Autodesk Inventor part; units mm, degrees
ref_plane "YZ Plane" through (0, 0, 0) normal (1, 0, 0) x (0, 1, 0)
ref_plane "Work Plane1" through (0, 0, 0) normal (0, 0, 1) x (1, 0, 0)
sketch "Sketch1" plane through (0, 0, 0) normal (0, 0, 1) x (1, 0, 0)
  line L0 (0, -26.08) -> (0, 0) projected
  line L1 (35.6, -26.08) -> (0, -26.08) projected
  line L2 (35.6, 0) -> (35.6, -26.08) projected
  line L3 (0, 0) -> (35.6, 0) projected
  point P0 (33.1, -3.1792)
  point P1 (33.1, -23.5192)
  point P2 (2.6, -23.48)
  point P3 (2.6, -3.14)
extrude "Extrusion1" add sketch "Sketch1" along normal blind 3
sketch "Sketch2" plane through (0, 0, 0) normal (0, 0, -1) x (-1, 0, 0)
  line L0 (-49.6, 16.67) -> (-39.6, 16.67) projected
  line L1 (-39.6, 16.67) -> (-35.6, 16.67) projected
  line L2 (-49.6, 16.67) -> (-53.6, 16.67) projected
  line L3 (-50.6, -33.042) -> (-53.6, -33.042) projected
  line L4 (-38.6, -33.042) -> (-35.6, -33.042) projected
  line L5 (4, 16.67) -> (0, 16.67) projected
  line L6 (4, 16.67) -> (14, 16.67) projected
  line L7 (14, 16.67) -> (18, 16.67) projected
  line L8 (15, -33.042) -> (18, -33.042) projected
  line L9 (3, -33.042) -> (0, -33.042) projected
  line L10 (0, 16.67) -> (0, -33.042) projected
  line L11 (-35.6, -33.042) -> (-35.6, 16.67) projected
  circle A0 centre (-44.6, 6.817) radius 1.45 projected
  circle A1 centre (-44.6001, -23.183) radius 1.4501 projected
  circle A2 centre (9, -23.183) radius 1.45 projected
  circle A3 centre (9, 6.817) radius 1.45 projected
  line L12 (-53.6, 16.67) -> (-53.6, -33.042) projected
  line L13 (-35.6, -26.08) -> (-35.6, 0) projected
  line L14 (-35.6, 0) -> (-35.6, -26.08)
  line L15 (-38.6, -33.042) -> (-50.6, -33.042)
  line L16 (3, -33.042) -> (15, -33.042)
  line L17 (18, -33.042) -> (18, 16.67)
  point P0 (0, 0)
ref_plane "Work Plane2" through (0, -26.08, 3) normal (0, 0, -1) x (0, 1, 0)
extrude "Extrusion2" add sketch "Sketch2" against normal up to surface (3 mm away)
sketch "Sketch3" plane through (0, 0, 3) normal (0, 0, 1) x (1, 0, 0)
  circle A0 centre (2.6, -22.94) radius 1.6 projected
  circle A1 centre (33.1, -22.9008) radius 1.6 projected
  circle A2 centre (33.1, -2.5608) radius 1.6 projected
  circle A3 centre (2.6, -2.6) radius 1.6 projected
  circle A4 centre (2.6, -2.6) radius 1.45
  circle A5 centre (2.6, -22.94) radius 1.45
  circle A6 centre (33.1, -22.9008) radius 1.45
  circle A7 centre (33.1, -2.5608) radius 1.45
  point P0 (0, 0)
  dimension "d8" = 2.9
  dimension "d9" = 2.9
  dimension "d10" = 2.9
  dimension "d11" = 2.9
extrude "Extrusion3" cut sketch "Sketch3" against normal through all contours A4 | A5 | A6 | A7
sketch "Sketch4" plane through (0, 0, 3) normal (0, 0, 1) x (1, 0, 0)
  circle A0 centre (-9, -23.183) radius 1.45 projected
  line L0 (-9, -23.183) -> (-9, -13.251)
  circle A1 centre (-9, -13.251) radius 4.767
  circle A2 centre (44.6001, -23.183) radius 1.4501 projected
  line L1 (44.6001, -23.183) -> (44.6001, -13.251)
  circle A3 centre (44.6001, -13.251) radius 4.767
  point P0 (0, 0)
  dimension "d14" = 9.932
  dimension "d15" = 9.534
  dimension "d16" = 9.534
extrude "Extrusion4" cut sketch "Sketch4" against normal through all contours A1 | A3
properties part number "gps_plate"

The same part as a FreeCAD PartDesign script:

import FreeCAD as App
import Part
import Sketcher

doc = App.newDocument("Part")
body = doc.addObject("PartDesign::Body", "Body")

sketch1 = body.newObject("Sketcher::SketchObject", "Sketch")
sketch1.AttachmentSupport = (doc.getObject("XY_Plane"), [""])
sketch1.MapMode = "FlatFace"
sketch1.addGeometry([
    Part.LineSegment(App.Vector(0, 0, 0), App.Vector(0, -26, 0)),
    Part.LineSegment(App.Vector(0, -26, 0), App.Vector(36, -26, 0)),
    Part.LineSegment(App.Vector(36, -26, 0), App.Vector(36, 0, 0)),
    Part.LineSegment(App.Vector(36, 0, 0), App.Vector(0, 0, 0)),
], False)
sketch1.addConstraint([
    Sketcher.Constraint("Coincident", 0, 2, 1, 1),
    Sketcher.Constraint("Coincident", 1, 2, 2, 1),
    Sketcher.Constraint("Coincident", 2, 2, 3, 1),
    Sketcher.Constraint("Coincident", 3, 2, 0, 1),
    Sketcher.Constraint("Vertical", 0),
    Sketcher.Constraint("Horizontal", 1),
    Sketcher.Constraint("Vertical", 2),
    Sketcher.Constraint("Horizontal", 3),
    Sketcher.Constraint("Coincident", 3, 2, -1, 1),
    Sketcher.Constraint("DistanceX", 1, 1, 1, 2, 35.6),
    Sketcher.Constraint("DistanceY", 0, 2, 0, 1, 26.08),
])
pad1 = body.newObject("PartDesign::Pad", "Pad")
pad1.Profile = sketch1
pad1.Length = 3

sketch2 = body.newObject("Sketcher::SketchObject", "Sketch001")
sketch2.AttachmentSupport = (doc.getObject("XY_Plane"), [""])
sketch2.MapMode = "FlatFace"
sketch2.addGeometry([
    Part.LineSegment(App.Vector(35.6, 16.7, 0), App.Vector(53.6, 16.7, 0)),
    Part.LineSegment(App.Vector(53.6, 16.7, 0), App.Vector(53.6, -33, 0)),
    Part.LineSegment(App.Vector(53.6, -33, 0), App.Vector(35.6, -33, 0)),
    Part.LineSegment(App.Vector(35.6, -33, 0), App.Vector(35.6, 16.7, 0)),
    Part.Circle(App.Vector(44.6, -23.2, 0), App.Vector(0, 0, 1), 1.5),
    Part.Circle(App.Vector(44.6, 6.8, 0), App.Vector(0, 0, 1), 1.4),
    Part.LineSegment(App.Vector(-18, 16.7, 0), App.Vector(0, 16.7, 0)),
    Part.LineSegment(App.Vector(0, 16.7, 0), App.Vector(0, -33, 0)),
    Part.LineSegment(App.Vector(0, -33, 0), App.Vector(-18, -33, 0)),
    Part.LineSegment(App.Vector(-18, -33, 0), App.Vector(-18, 16.7, 0)),
    Part.Circle(App.Vector(-9, -23.2, 0), App.Vector(0, 0, 1), 1.4),
    Part.Circle(App.Vector(-9, 6.8, 0), App.Vector(0, 0, 1), 1.4),
], False)
sketch2.addConstraint([
    Sketcher.Constraint("Coincident", 0, 2, 1, 1),
    Sketcher.Constraint("Coincident", 1, 2, 2, 1),
    Sketcher.Constraint("Coincident", 2, 2, 3, 1),
    Sketcher.Constraint("Coincident", 3, 2, 0, 1),
    Sketcher.Constraint("Coincident", 6, 2, 7, 1),
    Sketcher.Constraint("Coincident", 7, 2, 8, 1),
    Sketcher.Constraint("Coincident", 8, 2, 9, 1),
    Sketcher.Constraint("Coincident", 9, 2, 6, 1),
    Sketcher.Constraint("Horizontal", 0),
    Sketcher.Constraint("Vertical", 1),
    Sketcher.Constraint("Horizontal", 2),
    Sketcher.Constraint("Vertical", 3),
    Sketcher.Constraint("Horizontal", 6),
    Sketcher.Constraint("Vertical", 7),
    Sketcher.Constraint("Horizontal", 8),
    Sketcher.Constraint("Vertical", 9),
    Sketcher.Constraint("Equal", 4, 5),
    Sketcher.Constraint("Equal", 5, 10),
    Sketcher.Constraint("Equal", 10, 11),
    Sketcher.Constraint("PointOnObject", 6, 2, -2),
    Sketcher.Constraint("Horizontal", 4, 3, 10, 3),
    Sketcher.Constraint("Horizontal", 5, 3, 11, 3),
    Sketcher.Constraint("Horizontal", 3, 2, 6, 2),
    Sketcher.Constraint("Horizontal", 2, 2, 7, 2),
    Sketcher.Constraint("Vertical", 4, 3, 5, 3),
    Sketcher.Constraint("Vertical", 10, 3, 11, 3),
    Sketcher.Constraint("Equal", 2, 6),
    Sketcher.Constraint("Diameter", 5, 2.9),
    Sketcher.Constraint("DistanceX", 0, 1, 0, 2, 18.0),
    Sketcher.Constraint("DistanceX", 10, 3, -1, 1, 9.0),
    Sketcher.Constraint("DistanceY", 4, 3, 5, 3, 30.0),
    Sketcher.Constraint("DistanceX", 5, 3, 0, 2, 9.0),
    Sketcher.Constraint("DistanceX", -1, 1, 4, 3, 44.6),
    Sketcher.Constraint("DistanceY", 1, 2, 1, 1, 49.712),
    Sketcher.Constraint("DistanceY", -1, 1, 0, 2, 16.67),
    Sketcher.Constraint("DistanceY", 4, 3, -1, 1, 23.183),
])
pad2 = body.newObject("PartDesign::Pad", "Pad001")
pad2.Profile = sketch2
pad2.Length = 3

sketch3 = body.newObject("Sketcher::SketchObject", "Sketch002")
sketch3.AttachmentSupport = (doc.getObject("XY_Plane"), [""])
sketch3.MapMode = "FlatFace"
sketch3.AttachmentOffset = App.Placement(App.Vector(0, 0, 3), App.Rotation())
sketch3.addGeometry([
    Part.Circle(App.Vector(2.6, -2.6, 0), App.Vector(0, 0, 1), 1.4),
    Part.Circle(App.Vector(2.6, -22.9, 0), App.Vector(0, 0, 1), 1.4),
    Part.Circle(App.Vector(33.1, -22.9, 0), App.Vector(0, 0, 1), 1.4),
    Part.Circle(App.Vector(33.1, -2.6, 0), App.Vector(0, 0, 1), 1.4),
], False)
sketch3.addConstraint([
    Sketcher.Constraint("Equal", 0, 1),
    Sketcher.Constraint("Equal", 1, 2),
    Sketcher.Constraint("Equal", 2, 3),
    Sketcher.Constraint("Vertical", 0, 3, 1, 3),
    Sketcher.Constraint("Vertical", 2, 3, 3, 3),
    Sketcher.Constraint("Diameter", 0, 2.9),
    Sketcher.Constraint("DistanceX", -1, 1, 0, 3, 2.6),
    Sketcher.Constraint("DistanceY", 0, 3, -1, 1, 2.6),
    Sketcher.Constraint("DistanceX", -1, 1, 2, 3, 33.1),
    Sketcher.Constraint("DistanceY", 1, 3, -1, 1, 22.94),
    Sketcher.Constraint("DistanceY", 2, 3, 3, 3, 20.34),
    Sketcher.Constraint("DistanceY", 2, 3, -1, 1, 22.9008),
])
pocket1 = body.newObject("PartDesign::Pocket", "Pocket")
pocket1.Profile = sketch3
pocket1.Type = "ThroughAll"

sketch4 = body.newObject("Sketcher::SketchObject", "Sketch003")
sketch4.AttachmentSupport = (doc.getObject("XY_Plane"), [""])
sketch4.MapMode = "FlatFace"
sketch4.AttachmentOffset = App.Placement(App.Vector(0, 0, 3), App.Rotation())
sketch4.addGeometry([
    Part.Circle(App.Vector(-9, -13.3, 0), App.Vector(0, 0, 1), 4.8),
    Part.Circle(App.Vector(44.6, -13.3, 0), App.Vector(0, 0, 1), 4.8),
], False)
sketch4.addConstraint([
    Sketcher.Constraint("Equal", 0, 1),
    Sketcher.Constraint("Horizontal", 0, 3, 1, 3),
    Sketcher.Constraint("Diameter", 0, 9.534),
    Sketcher.Constraint("DistanceX", 0, 3, -1, 1, 9.0),
    Sketcher.Constraint("DistanceX", -1, 1, 1, 3, 44.6),
    Sketcher.Constraint("DistanceY", 0, 3, -1, 1, 13.251),
])
pocket2 = body.newObject("PartDesign::Pocket", "Pocket001")
pocket2.Profile = sketch4
pocket2.Type = "ThroughAll"

doc.recompute()
